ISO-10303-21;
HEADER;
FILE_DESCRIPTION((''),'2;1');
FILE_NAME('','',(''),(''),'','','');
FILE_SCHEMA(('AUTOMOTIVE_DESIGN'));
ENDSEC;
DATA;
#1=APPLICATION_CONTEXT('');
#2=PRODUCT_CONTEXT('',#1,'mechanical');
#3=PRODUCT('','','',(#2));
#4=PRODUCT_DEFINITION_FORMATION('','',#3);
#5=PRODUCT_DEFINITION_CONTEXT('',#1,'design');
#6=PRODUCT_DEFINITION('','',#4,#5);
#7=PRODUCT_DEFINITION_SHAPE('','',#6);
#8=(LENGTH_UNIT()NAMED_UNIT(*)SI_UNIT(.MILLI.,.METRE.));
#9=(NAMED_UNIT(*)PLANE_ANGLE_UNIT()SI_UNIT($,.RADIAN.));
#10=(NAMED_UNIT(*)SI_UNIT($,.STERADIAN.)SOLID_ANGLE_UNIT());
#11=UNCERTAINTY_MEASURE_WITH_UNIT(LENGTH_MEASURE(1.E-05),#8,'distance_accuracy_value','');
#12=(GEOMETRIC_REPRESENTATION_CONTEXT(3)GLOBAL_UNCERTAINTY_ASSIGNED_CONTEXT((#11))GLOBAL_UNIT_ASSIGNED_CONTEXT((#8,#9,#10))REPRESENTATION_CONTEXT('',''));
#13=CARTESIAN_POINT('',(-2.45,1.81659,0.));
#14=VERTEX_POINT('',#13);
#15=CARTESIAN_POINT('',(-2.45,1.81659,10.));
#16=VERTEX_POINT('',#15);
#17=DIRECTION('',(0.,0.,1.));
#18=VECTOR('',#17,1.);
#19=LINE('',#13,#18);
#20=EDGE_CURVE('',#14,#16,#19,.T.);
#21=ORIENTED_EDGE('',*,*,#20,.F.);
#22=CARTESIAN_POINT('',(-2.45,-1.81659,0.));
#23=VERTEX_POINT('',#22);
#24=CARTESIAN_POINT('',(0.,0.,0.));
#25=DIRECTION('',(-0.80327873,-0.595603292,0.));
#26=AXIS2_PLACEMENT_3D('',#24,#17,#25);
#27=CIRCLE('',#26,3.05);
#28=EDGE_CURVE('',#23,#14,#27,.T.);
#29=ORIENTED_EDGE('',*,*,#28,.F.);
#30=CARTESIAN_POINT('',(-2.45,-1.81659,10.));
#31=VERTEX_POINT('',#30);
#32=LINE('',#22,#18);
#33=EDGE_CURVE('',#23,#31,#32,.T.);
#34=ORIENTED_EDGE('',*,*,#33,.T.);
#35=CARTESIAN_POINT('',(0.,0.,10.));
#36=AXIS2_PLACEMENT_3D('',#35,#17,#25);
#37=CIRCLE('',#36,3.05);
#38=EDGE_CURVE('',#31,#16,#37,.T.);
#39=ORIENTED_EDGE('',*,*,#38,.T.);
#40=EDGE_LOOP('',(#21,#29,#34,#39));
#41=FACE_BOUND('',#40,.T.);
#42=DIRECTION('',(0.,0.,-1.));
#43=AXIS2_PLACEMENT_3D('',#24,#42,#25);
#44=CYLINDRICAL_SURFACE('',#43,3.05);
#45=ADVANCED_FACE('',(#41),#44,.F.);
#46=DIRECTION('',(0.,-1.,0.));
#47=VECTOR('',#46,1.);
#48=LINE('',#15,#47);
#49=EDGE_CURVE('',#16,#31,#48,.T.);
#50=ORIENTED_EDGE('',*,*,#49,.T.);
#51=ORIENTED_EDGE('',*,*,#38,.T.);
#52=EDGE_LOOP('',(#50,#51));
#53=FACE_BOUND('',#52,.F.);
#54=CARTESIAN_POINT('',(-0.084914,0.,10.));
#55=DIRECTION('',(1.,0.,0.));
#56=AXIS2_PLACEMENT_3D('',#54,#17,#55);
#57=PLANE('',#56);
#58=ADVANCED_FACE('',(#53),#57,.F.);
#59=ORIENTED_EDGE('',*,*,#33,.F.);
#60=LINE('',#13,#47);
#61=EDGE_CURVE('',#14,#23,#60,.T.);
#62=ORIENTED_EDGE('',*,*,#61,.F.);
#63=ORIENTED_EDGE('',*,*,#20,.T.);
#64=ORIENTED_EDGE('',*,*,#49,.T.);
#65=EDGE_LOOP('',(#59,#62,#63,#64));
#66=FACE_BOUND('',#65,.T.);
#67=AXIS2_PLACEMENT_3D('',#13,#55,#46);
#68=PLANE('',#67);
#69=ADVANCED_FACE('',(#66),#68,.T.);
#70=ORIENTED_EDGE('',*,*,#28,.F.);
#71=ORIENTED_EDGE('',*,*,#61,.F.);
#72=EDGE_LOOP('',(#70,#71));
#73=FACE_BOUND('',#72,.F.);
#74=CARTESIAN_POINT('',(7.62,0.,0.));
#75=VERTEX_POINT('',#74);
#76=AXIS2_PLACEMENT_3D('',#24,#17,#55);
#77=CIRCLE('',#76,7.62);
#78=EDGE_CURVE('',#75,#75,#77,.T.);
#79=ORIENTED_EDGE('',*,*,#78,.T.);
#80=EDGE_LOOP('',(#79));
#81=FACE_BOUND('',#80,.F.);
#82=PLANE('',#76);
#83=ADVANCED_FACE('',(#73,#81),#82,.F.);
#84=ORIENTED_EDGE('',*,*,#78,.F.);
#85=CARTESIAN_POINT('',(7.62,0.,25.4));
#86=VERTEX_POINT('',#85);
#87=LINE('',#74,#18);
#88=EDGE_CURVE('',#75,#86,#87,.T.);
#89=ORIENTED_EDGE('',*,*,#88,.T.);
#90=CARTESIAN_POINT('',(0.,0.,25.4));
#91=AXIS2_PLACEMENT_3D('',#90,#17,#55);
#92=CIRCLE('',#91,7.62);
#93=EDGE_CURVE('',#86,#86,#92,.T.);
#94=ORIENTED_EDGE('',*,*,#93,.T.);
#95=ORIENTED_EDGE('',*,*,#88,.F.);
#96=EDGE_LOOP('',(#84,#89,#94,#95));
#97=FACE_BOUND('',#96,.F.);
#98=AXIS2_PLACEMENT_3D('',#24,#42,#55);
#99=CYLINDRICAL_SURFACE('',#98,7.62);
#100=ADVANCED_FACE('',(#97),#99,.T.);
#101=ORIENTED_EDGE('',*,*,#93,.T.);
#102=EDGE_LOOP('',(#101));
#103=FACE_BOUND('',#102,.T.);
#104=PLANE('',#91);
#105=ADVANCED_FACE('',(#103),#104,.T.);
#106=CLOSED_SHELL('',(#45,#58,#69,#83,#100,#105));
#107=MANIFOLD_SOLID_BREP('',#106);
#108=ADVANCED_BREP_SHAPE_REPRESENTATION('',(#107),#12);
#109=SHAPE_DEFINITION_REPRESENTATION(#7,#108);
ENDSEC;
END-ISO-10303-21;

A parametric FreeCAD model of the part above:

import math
import FreeCAD as App
import Part
import Sketcher

doc = App.newDocument("Part")
body = doc.addObject("PartDesign::Body", "Body")

# Sketch on XY plane
sketch1 = body.newObject("Sketcher::SketchObject", "Sketch")
sketch1.AttachmentSupport = (doc.getObject("XY_Plane"), [""])
sketch1.MapMode = "FlatFace"
sketch1.addGeometry(Part.Circle(App.Vector(0, 0, 0), App.Vector(0, 0, 1), 8), False)
sketch1.addConstraint(Sketcher.Constraint("Coincident", 0, 3, -1, 1))
sketch1.addConstraint(Sketcher.Constraint("Diameter", 0, 15.24))
pad1 = body.newObject("PartDesign::Pad", "Pad")
pad1.Profile = sketch1
pad1.Length = 25.4

# Sketch on XY plane
sketch2 = body.newObject("Sketcher::SketchObject", "Sketch001")
sketch2.AttachmentSupport = (doc.getObject("XY_Plane"), [""])
sketch2.MapMode = "FlatFace"
sketch2.addGeometry(Part.LineSegment(App.Vector(-2.5, 1.8, 0), App.Vector(-2.5, -1.8, 0)), False)
sketch2.addGeometry(Part.ArcOfCircle(Part.Circle(App.Vector(0, 0, 0), App.Vector(0, 0, 1), 3), math.radians(-143), math.radians(143)), False)
sketch2.addConstraint(Sketcher.Constraint("Coincident", 0, 1, 1, 2))
sketch2.addConstraint(Sketcher.Constraint("Coincident", 1, 1, 0, 2))
sketch2.addConstraint(Sketcher.Constraint("Vertical", 0))
sketch2.addConstraint(Sketcher.Constraint("Coincident", 1, 3, -1, 1))
sketch2.addConstraint(Sketcher.Constraint("Radius", 1, 3.05))
sketch2.addConstraint(Sketcher.Constraint("DistanceX", 0, 1, -1, 1, 2.45))
pocket1 = body.newObject("PartDesign::Pocket", "Pocket")
pocket1.Profile = sketch2
pocket1.Length = 10
pocket1.Reversed = True

doc.recompute()
